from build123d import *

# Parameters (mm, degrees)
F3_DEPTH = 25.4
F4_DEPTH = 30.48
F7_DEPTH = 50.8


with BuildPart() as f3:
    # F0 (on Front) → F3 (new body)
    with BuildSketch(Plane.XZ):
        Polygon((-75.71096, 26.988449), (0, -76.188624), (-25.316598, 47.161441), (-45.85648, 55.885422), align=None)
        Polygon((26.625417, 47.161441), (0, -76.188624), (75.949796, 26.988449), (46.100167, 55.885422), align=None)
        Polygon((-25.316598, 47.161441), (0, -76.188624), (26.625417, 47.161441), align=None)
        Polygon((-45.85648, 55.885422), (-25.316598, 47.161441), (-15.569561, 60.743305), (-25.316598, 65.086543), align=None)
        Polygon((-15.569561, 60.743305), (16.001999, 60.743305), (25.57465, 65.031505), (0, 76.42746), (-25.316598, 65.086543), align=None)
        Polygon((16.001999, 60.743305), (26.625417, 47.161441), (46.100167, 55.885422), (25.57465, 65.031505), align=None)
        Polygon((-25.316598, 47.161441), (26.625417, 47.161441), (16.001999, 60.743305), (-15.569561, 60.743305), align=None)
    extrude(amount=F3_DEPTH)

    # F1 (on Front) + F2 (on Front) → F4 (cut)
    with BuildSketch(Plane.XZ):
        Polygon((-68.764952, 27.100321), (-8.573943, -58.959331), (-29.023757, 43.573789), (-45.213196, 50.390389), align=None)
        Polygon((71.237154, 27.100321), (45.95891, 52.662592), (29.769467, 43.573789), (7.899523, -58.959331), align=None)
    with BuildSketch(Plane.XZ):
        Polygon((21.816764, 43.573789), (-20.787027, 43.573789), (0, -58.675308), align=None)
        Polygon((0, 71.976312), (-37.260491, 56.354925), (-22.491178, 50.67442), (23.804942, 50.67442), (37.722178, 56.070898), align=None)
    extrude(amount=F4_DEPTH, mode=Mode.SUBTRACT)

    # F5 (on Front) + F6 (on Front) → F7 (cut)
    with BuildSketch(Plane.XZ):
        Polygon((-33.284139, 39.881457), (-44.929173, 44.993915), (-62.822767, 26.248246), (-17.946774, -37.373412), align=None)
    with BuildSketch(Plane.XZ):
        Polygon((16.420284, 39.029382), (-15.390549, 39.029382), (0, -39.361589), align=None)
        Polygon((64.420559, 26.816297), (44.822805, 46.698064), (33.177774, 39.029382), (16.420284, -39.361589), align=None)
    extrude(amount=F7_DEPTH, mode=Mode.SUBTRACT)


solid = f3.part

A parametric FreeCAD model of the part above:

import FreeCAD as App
import Part
import Sketcher
from FreeCAD import Vector
Q = App.Units.Quantity

doc = App.newDocument("Part")
body = doc.addObject("PartDesign::Body", "Body")

# Sketch on XZ plane
sketch1 = body.newObject("Sketcher::SketchObject", "Sketch")
sketch1.AttachmentSupport = (doc.getObject("XZ_Plane"), [""])
sketch1.MapMode = "FlatFace"
sketch1.addGeometry(Part.LineSegment(Vector(-76, 27, 0), Vector(0, -76, 0)), False)
sketch1.addGeometry(Part.LineSegment(Vector(0, -76, 0), Vector(76, 27, 0)), False)
sketch1.addGeometry(Part.LineSegment(Vector(76, 27, 0), Vector(46, 56, 0)), False)
sketch1.addGeometry(Part.LineSegment(Vector(46, 56, 0), Vector(26, 65, 0)), False)
sketch1.addGeometry(Part.LineSegment(Vector(26, 65, 0), Vector(0, 76, 0)), False)
sketch1.addGeometry(Part.LineSegment(Vector(0, 76, 0), Vector(-25, 65, 0)), False)
sketch1.addGeometry(Part.LineSegment(Vector(-25, 65, 0), Vector(-46, 56, 0)), False)
sketch1.addGeometry(Part.LineSegment(Vector(-46, 56, 0), Vector(-76, 27, 0)), False)
sketch1.addConstraint(Sketcher.Constraint("Coincident", 0, 2, 1, 1))
sketch1.addConstraint(Sketcher.Constraint("Coincident", 1, 2, 2, 1))
sketch1.addConstraint(Sketcher.Constraint("Coincident", 2, 2, 3, 1))
sketch1.addConstraint(Sketcher.Constraint("Coincident", 3, 2, 4, 1))
sketch1.addConstraint(Sketcher.Constraint("Coincident", 4, 2, 5, 1))
sketch1.addConstraint(Sketcher.Constraint("Coincident", 5, 2, 6, 1))
sketch1.addConstraint(Sketcher.Constraint("Coincident", 6, 2, 7, 1))
sketch1.addConstraint(Sketcher.Constraint("Coincident", 7, 2, 0, 1))
sketch1.addConstraint(Sketcher.Constraint("PointOnObject", 0, 2, -2))
sketch1.addConstraint(Sketcher.Constraint("PointOnObject", 4, 2, -2))
sketch1.addConstraint(Sketcher.Constraint("Parallel", 3, 4))
sketch1.addConstraint(Sketcher.Constraint("Parallel", 5, 6))
sketch1.addConstraint(Sketcher.Constraint("Horizontal", 2, 2, 6, 2))
sketch1.addConstraint(Sketcher.Constraint("Horizontal", 1, 2, 7, 2))
sketch1.addConstraint(Sketcher.Constraint("Distance", 5, Q("27.740702 mm")))
sketch1.addConstraint(Sketcher.Constraint("Distance", 3, Q("22.471041 mm")))
sketch1.addConstraint(Sketcher.Constraint("Distance", 4, Q("27.998759 mm")))
sketch1.addConstraint(Sketcher.Constraint("DistanceY", -1, 1, 1, 2, Q("26.988449 mm")))
sketch1.addConstraint(Sketcher.Constraint("DistanceY", -1, 1, 2, 2, Q("55.885422 mm")))
sketch1.addConstraint(Sketcher.Constraint("DistanceX", -1, 1, 3, 2, Q("25.57465 mm")))
sketch1.addConstraint(Sketcher.Constraint("DistanceX", 6, 2, -1, 1, Q("45.85648 mm")))
sketch1.addConstraint(Sketcher.Constraint("DistanceX", 7, 2, -1, 1, Q("75.71096 mm")))
sketch1.addConstraint(Sketcher.Constraint("DistanceX", 2, 2, 1, 2, Q("29.849629 mm")))
sketch1.addConstraint(Sketcher.Constraint("DistanceY", 0, 2, 3, 2, Q("141.220129 mm")))
pad1 = body.newObject("PartDesign::Pad", "Pad")
pad1.Profile = sketch1
pad1.Length = Q("1 in")

# Sketch on XZ plane
sketch2 = body.newObject("Sketcher::SketchObject", "Sketch001")
sketch2.AttachmentSupport = (doc.getObject("XZ_Plane"), [""])
sketch2.MapMode = "FlatFace"
sketch2.addGeometry(Part.LineSegment(Vector(-69, 27, 0), Vector(-9, -59, 0)), False)
sketch2.addGeometry(Part.LineSegment(Vector(-9, -59, 0), Vector(-29, 44, 0)), False)
sketch2.addGeometry(Part.LineSegment(Vector(-29, 44, 0), Vector(-45, 50, 0)), False)
sketch2.addGeometry(Part.LineSegment(Vector(-45, 50, 0), Vector(-69, 27, 0)), False)
sketch2.addGeometry(Part.LineSegment(Vector(71, 27, 0), Vector(46, 53, 0)), False)
sketch2.addGeometry(Part.LineSegment(Vector(46, 53, 0), Vector(30, 44, 0)), False)
sketch2.addGeometry(Part.LineSegment(Vector(30, 44, 0), Vector(8, -59, 0)), False)
sketch2.addGeometry(Part.LineSegment(Vector(8, -59, 0), Vector(71, 27, 0)), False)
sketch2.addGeometry(Part.LineSegment(Vector(22, 44, 0), Vector(-21, 44, 0)), False)
sketch2.addGeometry(Part.LineSegment(Vector(-21, 44, 0), Vector(0, -59, 0)), False)
sketch2.addGeometry(Part.LineSegment(Vector(0, -59, 0), Vector(22, 44, 0)), False)
sketch2.addGeometry(Part.LineSegment(Vector(0, 72, 0), Vector(-37, 56, 0)), False)
sketch2.addGeometry(Part.LineSegment(Vector(-37, 56, 0), Vector(-22, 51, 0)), False)
sketch2.addGeometry(Part.LineSegment(Vector(-22, 51, 0), Vector(24, 51, 0)), False)
sketch2.addGeometry(Part.LineSegment(Vector(24, 51, 0), Vector(38, 56, 0)), False)
sketch2.addGeometry(Part.LineSegment(Vector(38, 56, 0), Vector(0, 72, 0)), False)
sketch2.addConstraint(Sketcher.Constraint("Coincident", 0, 2, 1, 1))
sketch2.addConstraint(Sketcher.Constraint("Coincident", 1, 2, 2, 1))
sketch2.addConstraint(Sketcher.Constraint("Coincident", 2, 2, 3, 1))
sketch2.addConstraint(Sketcher.Constraint("Coincident", 3, 2, 0, 1))
sketch2.addConstraint(Sketcher.Constraint("Coincident", 4, 2, 5, 1))
sketch2.addConstraint(Sketcher.Constraint("Coincident", 5, 2, 6, 1))
sketch2.addConstraint(Sketcher.Constraint("Coincident", 6, 2, 7, 1))
sketch2.addConstraint(Sketcher.Constraint("Coincident", 7, 2, 4, 1))
sketch2.addConstraint(Sketcher.Constraint("Coincident", 8, 2, 9, 1))
sketch2.addConstraint(Sketcher.Constraint("Coincident", 9, 2, 10, 1))
sketch2.addConstraint(Sketcher.Constraint("Coincident", 10, 2, 8, 1))
sketch2.addConstraint(Sketcher.Constraint("Coincident", 11, 2, 12, 1))
sketch2.addConstraint(Sketcher.Constraint("Coincident", 12, 2, 13, 1))
sketch2.addConstraint(Sketcher.Constraint("Coincident", 13, 2, 14, 1))
sketch2.addConstraint(Sketcher.Constraint("Coincident", 14, 2, 15, 1))
sketch2.addConstraint(Sketcher.Constraint("Coincident", 15, 2, 11, 1))
sketch2.addConstraint(Sketcher.Constraint("Horizontal", 8))
sketch2.addConstraint(Sketcher.Constraint("Horizontal", 13))
sketch2.addConstraint(Sketcher.Constraint("PointOnObject", 9, 2, -2))
sketch2.addConstraint(Sketcher.Constraint("PointOnObject", 15, 2, -2))
sketch2.addConstraint(Sketcher.Constraint("Perpendicular", 3, 4))
sketch2.addConstraint(Sketcher.Constraint("Horizontal", 1, 2, 5, 2))
sketch2.addConstraint(Sketcher.Constraint("Horizontal", 0, 2, 6, 2))
sketch2.addConstraint(Sketcher.Constraint("Horizontal", 3, 2, 7, 2))
sketch2.addConstraint(Sketcher.Constraint("Horizontal", 5, 2, 8, 2))
sketch2.addConstraint(Sketcher.Constraint("Angle", 5, Q("-150.690012 deg")))
sketch2.addConstraint(Sketcher.Constraint("Distance", 0, Q("105.020099 mm")))
sketch2.addConstraint(Sketcher.Constraint("Distance", 10, Q("104.550701 mm")))
sketch2.addConstraint(Sketcher.Constraint("DistanceX", 8, 2, 8, 1, Q("42.603791 mm")))
sketch2.addConstraint(Sketcher.Constraint("DistanceX", 13, 1, 13, 2, Q("46.29612 mm")))
sketch2.addConstraint(Sketcher.Constraint("DistanceY", 1, 2, 2, 2, Q("6.8166 mm")))
sketch2.addConstraint(Sketcher.Constraint("Distance", 1, Q("104.552549 mm")))
sketch2.addConstraint(Sketcher.Constraint("Distance", 2, Q("17.565989 mm")))
sketch2.addConstraint(Sketcher.Constraint("Distance", 3, Q("33.122688 mm")))
sketch2.addConstraint(Sketcher.Constraint("Distance", 6, Q("104.839569 mm")))
sketch2.addConstraint(Sketcher.Constraint("Distance", 14, Q("14.926869 mm")))
sketch2.addConstraint(Sketcher.Constraint("DistanceY", 0, 2, -1, 1, Q("58.959331 mm")))
sketch2.addConstraint(Sketcher.Constraint("DistanceY", -1, 1, 1, 2, Q("43.573789 mm")))
sketch2.addConstraint(Sketcher.Constraint("DistanceX", 3, 2, -1, 1, Q("68.764952 mm")))
sketch2.addConstraint(Sketcher.Constraint("DistanceX", -1, 1, 4, 2, Q("45.95891 mm")))
sketch2.addConstraint(Sketcher.Constraint("DistanceY", -1, 1, 4, 2, Q("52.662592 mm")))
sketch2.addConstraint(Sketcher.Constraint("DistanceX", 11, 2, -1, 1, Q("37.260491 mm")))
sketch2.addConstraint(Sketcher.Constraint("DistanceX", 12, 2, -1, 1, Q("22.491178 mm")))
sketch2.addConstraint(Sketcher.Constraint("DistanceY", -1, 1, 12, 2, Q("50.67442 mm")))
sketch2.addConstraint(Sketcher.Constraint("DistanceY", -1, 1, 15, 2, Q("71.976312 mm")))
sketch2.addConstraint(Sketcher.Constraint("DistanceX", 1, 2, 8, 2, Q("8.23673 mm")))
sketch2.addConstraint(Sketcher.Constraint("DistanceX", 5, 2, 14, 2, Q("7.952711 mm")))
sketch2.addConstraint(Sketcher.Constraint("Distance", 11, Q("40.402623 mm")))
pocket1 = body.newObject("PartDesign::Pocket", "Pocket")
pocket1.Profile = sketch2
pocket1.Length = Q("1.2 in")
pocket1.Reversed = True

# Sketch on XZ plane
sketch3 = body.newObject("Sketcher::SketchObject", "Sketch002")
sketch3.AttachmentSupport = (doc.getObject("XZ_Plane"), [""])
sketch3.MapMode = "FlatFace"
sketch3.addGeometry(Part.LineSegment(Vector(-33, 40, 0), Vector(-45, 45, 0)), False)
sketch3.addGeometry(Part.LineSegment(Vector(-45, 45, 0), Vector(-63, 26, 0)), False)
sketch3.addGeometry(Part.LineSegment(Vector(-63, 26, 0), Vector(-18, -37, 0)), False)
sketch3.addGeometry(Part.LineSegment(Vector(-18, -37, 0), Vector(-33, 40, 0)), False)
sketch3.addGeometry(Part.LineSegment(Vector(16, 39, 0), Vector(-15, 39, 0)), False)
sketch3.addGeometry(Part.LineSegment(Vector(-15, 39, 0), Vector(0, -39, 0)), False)
sketch3.addGeometry(Part.LineSegment(Vector(0, -39, 0), Vector(16, 39, 0)), False)
sketch3.addGeometry(Part.LineSegment(Vector(64, 27, 0), Vector(45, 47, 0)), False)
sketch3.addGeometry(Part.LineSegment(Vector(45, 47, 0), Vector(33, 39, 0)), False)
sketch3.addGeometry(Part.LineSegment(Vector(33, 39, 0), Vector(16, -39, 0)), False)
sketch3.addGeometry(Part.LineSegment(Vector(16, -39, 0), Vector(64, 27, 0)), False)
sketch3.addConstraint(Sketcher.Constraint("Coincident", 0, 2, 1, 1))
sketch3.addConstraint(Sketcher.Constraint("Coincident", 1, 2, 2, 1))
sketch3.addConstraint(Sketcher.Constraint("Coincident", 2, 2, 3, 1))
sketch3.addConstraint(Sketcher.Constraint("Coincident", 3, 2, 0, 1))
sketch3.addConstraint(Sketcher.Constraint("Coincident", 4, 2, 5, 1))
sketch3.addConstraint(Sketcher.Constraint("Coincident", 5, 2, 6, 1))
sketch3.addConstraint(Sketcher.Constraint("Coincident", 6, 2, 4, 1))
sketch3.addConstraint(Sketcher.Constraint("Coincident", 7, 2, 8, 1))
sketch3.addConstraint(Sketcher.Constraint("Coincident", 8, 2, 9, 1))
sketch3.addConstraint(Sketcher.Constraint("Coincident", 9, 2, 10, 1))
sketch3.addConstraint(Sketcher.Constraint("Coincident", 10, 2, 7, 1))
sketch3.addConstraint(Sketcher.Constraint("Horizontal", 4))
sketch3.addConstraint(Sketcher.Constraint("PointOnObject", 5, 2, -2))
sketch3.addConstraint(Sketcher.Constraint("Horizontal", 6, 2, 8, 2))
sketch3.addConstraint(Sketcher.Constraint("Horizontal", 5, 2, 9, 2))
sketch3.addConstraint(Sketcher.Constraint("Vertical", 6, 2, 9, 2))
sketch3.addConstraint(Sketcher.Constraint("DistanceX", 0, 2, 2, 2, Q("26.982399 mm")))
sketch3.addConstraint(Sketcher.Constraint("Distance", 6, Q("80.09226 mm")))
sketch3.addConstraint(Sketcher.Constraint("Distance", 7, Q("27.916959 mm")))
sketch3.addConstraint(Sketcher.Constraint("DistanceX", 4, 2, 4, 1, Q("31.810833 mm")))
sketch3.addConstraint(Sketcher.Constraint("DistanceX", 3, 2, -1, 1, Q("33.284139 mm")))
sketch3.addConstraint(Sketcher.Constraint("DistanceX", 4, 2, -1, 1, Q("15.390549 mm")))
sketch3.addConstraint(Sketcher.Constraint("DistanceY", -1, 1, 4, 2, Q("39.029382 mm")))
sketch3.addConstraint(Sketcher.Constraint("DistanceX", -1, 1, 10, 2, Q("64.420559 mm")))
sketch3.addConstraint(Sketcher.Constraint("DistanceY", 1, 2, 0, 2, Q("18.745669 mm")))
sketch3.addConstraint(Sketcher.Constraint("DistanceY", 2, 2, 1, 2, Q("63.621658 mm")))
sketch3.addConstraint(Sketcher.Constraint("DistanceY", 3, 2, 0, 2, Q("5.112458 mm")))
sketch3.addConstraint(Sketcher.Constraint("DistanceX", 1, 2, 6, 2, Q("79.243051 mm")))
sketch3.addConstraint(Sketcher.Constraint("DistanceX", 6, 2, 7, 2, Q("28.402521 mm")))
sketch3.addConstraint(Sketcher.Constraint("DistanceX", 0, 2, 7, 2, Q("89.751978 mm")))
sketch3.addConstraint(Sketcher.Constraint("DistanceY", 0, 2, 7, 2, Q("1.704149 mm")))
sketch3.addConstraint(Sketcher.Constraint("DistanceX", 8, 2, 7, 2, Q("11.645031 mm")))
sketch3.addConstraint(Sketcher.Constraint("Distance", 8, Q("13.943293 mm")))
pocket2 = body.newObject("PartDesign::Pocket", "Pocket001")
pocket2.Profile = sketch3
pocket2.Length = Q("2 in")
pocket2.Reversed = True

doc.recompute()
